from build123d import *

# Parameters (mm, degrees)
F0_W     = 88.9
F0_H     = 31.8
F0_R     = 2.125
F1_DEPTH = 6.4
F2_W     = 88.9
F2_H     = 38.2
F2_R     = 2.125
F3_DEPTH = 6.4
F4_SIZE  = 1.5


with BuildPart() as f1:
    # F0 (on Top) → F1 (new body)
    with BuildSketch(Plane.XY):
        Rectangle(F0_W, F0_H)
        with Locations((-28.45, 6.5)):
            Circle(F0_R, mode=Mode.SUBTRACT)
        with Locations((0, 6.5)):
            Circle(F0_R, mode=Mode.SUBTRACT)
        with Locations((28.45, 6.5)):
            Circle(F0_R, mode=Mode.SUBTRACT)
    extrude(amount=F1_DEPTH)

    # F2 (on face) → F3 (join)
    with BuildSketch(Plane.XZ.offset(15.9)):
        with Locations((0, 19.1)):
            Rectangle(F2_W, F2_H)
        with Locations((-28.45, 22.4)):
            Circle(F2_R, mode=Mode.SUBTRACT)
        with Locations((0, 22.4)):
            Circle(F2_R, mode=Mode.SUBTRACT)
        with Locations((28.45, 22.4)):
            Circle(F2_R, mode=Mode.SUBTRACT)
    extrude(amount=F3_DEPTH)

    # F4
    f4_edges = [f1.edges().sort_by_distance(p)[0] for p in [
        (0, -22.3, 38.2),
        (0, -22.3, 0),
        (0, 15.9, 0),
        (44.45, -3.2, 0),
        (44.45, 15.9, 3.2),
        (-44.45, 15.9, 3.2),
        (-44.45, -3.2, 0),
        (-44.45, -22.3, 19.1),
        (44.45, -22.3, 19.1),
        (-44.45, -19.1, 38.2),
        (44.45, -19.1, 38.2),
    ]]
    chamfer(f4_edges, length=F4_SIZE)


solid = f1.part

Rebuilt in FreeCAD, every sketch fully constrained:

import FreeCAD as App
import Part
import Sketcher


def edges_at(feature, points):
    """Names of the edges that pass closest to the given points."""
    edges = feature.Shape.Edges
    near = lambda p: min(range(len(edges)), key=lambda i: edges[i].distToShape(Part.Vertex(*p))[0])
    return sorted({f"Edge{near(p) + 1}" for p in points})


def add_polygon(sketch, points):
    """Adds a closed chain of lines whose ends are joined by coincident constraints."""
    first, n = sketch.GeometryCount, len(points)
    for a, b in zip(points, points[1:] + points[:1]):
        sketch.addGeometry(Part.LineSegment(App.Vector(*a, 0), App.Vector(*b, 0)), False)
    for i in range(n):
        sketch.addConstraint(Sketcher.Constraint("Coincident", first + i, 2, first + (i + 1) % n, 1))

doc = App.newDocument("Part")
body = doc.addObject("PartDesign::Body", "Body")

# Sketch on XY plane
sketch1 = body.newObject("Sketcher::SketchObject", "Sketch")
sketch1.AttachmentSupport = (doc.getObject("XY_Plane"), [""])
sketch1.MapMode = "FlatFace"
add_polygon(sketch1, [(-44.5, 15.9), (-44.5, -15.9), (44.5, -15.9), (44.5, 15.9)])  # lines 0-3
sketch1.addGeometry(Part.Circle(App.Vector(-28.4, 6.5, 0), App.Vector(0, 0, 1), 2.1), False)  # 4
sketch1.addGeometry(Part.Circle(App.Vector(0, 6.5, 0), App.Vector(0, 0, 1), 2.1), False)  # 5
sketch1.addGeometry(Part.Circle(App.Vector(28.4, 6.5, 0), App.Vector(0, 0, 1), 2.1), False)  # 6
sketch1.addConstraint([
    Sketcher.Constraint("Vertical", 0),
    Sketcher.Constraint("Horizontal", 1),
    Sketcher.Constraint("Vertical", 2),
    Sketcher.Constraint("Horizontal", 3),
    Sketcher.Constraint("Equal", 4, 5),
    Sketcher.Constraint("Equal", 5, 6),
    Sketcher.Constraint("Symmetric", 0, 2, 2, 2, -1, 1),
    Sketcher.Constraint("Symmetric", 4, 3, 6, 3, -2),
    Sketcher.Constraint("PointOnObject", 5, 3, -2),
    Sketcher.Constraint("Horizontal", 4, 3, 5, 3),
    Sketcher.Constraint("Diameter", 4, 4.25),
    Sketcher.Constraint("DistanceX", 1, 1, 1, 2, 88.9),
    Sketcher.Constraint("DistanceY", 0, 2, 0, 1, 31.8),
    Sketcher.Constraint("DistanceX", 0, 2, 4, 3, 16.0),
    Sketcher.Constraint("DistanceY", -1, 1, 4, 3, 6.5),
])
pad1 = body.newObject("PartDesign::Pad", "Pad")
pad1.Profile = sketch1
pad1.Length = 6.4

# Sketch on XZ plane
sketch2 = body.newObject("Sketcher::SketchObject", "Sketch001")
sketch2.AttachmentSupport = (doc.getObject("XZ_Plane"), [""])
sketch2.MapMode = "FlatFace"
sketch2.AttachmentOffset = App.Placement(App.Vector(0, 0, 15.9), App.Rotation())
add_polygon(sketch2, [(-44.5, 38.2), (-44.5, 0), (44.5, 0), (44.5, 38.2)])  # lines 0-3
sketch2.addGeometry(Part.Circle(App.Vector(-28.4, 22.4, 0), App.Vector(0, 0, 1), 2.1), False)  # 4
sketch2.addGeometry(Part.Circle(App.Vector(0, 22.4, 0), App.Vector(0, 0, 1), 2.1), False)  # 5
sketch2.addGeometry(Part.Circle(App.Vector(28.4, 22.4, 0), App.Vector(0, 0, 1), 2.1), False)  # 6
sketch2.addConstraint([
    Sketcher.Constraint("Vertical", 0),
    Sketcher.Constraint("Horizontal", 1),
    Sketcher.Constraint("Vertical", 2),
    Sketcher.Constraint("Horizontal", 3),
    Sketcher.Constraint("Equal", 4, 5),
    Sketcher.Constraint("Equal", 5, 6),
    Sketcher.Constraint("Symmetric", 0, 2, 1, 2, -1, 1),
    Sketcher.Constraint("Symmetric", 4, 3, 6, 3, -2),
    Sketcher.Constraint("PointOnObject", 5, 3, -2),
    Sketcher.Constraint("Horizontal", 4, 3, 5, 3),
    Sketcher.Constraint("Diameter", 4, 4.25),
    Sketcher.Constraint("DistanceX", 1, 1, 1, 2, 88.9),
    Sketcher.Constraint("DistanceY", 0, 2, 0, 1, 38.2),
    Sketcher.Constraint("DistanceX", 0, 2, 4, 3, 16.0),
    Sketcher.Constraint("DistanceY", -1, 1, 4, 3, 22.4),
])
pad2 = body.newObject("PartDesign::Pad", "Pad001")
pad2.Profile = sketch2
pad2.Length = 6.4
doc.recompute()

chamfer = body.newObject("PartDesign::Chamfer", "Chamfer")
chamfer.Base = (pad2, edges_at(pad2, [
    (0, -22.3, 38.2),
    (0, -22.3, 0),
    (0, 15.9, 0),
    (44.45, -3.2, 0),
    (44.45, 15.9, 3.2),
    (-44.45, 15.9, 3.2),
    (-44.45, -3.2, 0),
    (-44.45, -22.3, 19.1),
    (44.45, -22.3, 19.1),
    (-44.45, -19.1, 38.2),
    (44.45, -19.1, 38.2),
]))
chamfer.Size = 1.5

doc.recompute()
